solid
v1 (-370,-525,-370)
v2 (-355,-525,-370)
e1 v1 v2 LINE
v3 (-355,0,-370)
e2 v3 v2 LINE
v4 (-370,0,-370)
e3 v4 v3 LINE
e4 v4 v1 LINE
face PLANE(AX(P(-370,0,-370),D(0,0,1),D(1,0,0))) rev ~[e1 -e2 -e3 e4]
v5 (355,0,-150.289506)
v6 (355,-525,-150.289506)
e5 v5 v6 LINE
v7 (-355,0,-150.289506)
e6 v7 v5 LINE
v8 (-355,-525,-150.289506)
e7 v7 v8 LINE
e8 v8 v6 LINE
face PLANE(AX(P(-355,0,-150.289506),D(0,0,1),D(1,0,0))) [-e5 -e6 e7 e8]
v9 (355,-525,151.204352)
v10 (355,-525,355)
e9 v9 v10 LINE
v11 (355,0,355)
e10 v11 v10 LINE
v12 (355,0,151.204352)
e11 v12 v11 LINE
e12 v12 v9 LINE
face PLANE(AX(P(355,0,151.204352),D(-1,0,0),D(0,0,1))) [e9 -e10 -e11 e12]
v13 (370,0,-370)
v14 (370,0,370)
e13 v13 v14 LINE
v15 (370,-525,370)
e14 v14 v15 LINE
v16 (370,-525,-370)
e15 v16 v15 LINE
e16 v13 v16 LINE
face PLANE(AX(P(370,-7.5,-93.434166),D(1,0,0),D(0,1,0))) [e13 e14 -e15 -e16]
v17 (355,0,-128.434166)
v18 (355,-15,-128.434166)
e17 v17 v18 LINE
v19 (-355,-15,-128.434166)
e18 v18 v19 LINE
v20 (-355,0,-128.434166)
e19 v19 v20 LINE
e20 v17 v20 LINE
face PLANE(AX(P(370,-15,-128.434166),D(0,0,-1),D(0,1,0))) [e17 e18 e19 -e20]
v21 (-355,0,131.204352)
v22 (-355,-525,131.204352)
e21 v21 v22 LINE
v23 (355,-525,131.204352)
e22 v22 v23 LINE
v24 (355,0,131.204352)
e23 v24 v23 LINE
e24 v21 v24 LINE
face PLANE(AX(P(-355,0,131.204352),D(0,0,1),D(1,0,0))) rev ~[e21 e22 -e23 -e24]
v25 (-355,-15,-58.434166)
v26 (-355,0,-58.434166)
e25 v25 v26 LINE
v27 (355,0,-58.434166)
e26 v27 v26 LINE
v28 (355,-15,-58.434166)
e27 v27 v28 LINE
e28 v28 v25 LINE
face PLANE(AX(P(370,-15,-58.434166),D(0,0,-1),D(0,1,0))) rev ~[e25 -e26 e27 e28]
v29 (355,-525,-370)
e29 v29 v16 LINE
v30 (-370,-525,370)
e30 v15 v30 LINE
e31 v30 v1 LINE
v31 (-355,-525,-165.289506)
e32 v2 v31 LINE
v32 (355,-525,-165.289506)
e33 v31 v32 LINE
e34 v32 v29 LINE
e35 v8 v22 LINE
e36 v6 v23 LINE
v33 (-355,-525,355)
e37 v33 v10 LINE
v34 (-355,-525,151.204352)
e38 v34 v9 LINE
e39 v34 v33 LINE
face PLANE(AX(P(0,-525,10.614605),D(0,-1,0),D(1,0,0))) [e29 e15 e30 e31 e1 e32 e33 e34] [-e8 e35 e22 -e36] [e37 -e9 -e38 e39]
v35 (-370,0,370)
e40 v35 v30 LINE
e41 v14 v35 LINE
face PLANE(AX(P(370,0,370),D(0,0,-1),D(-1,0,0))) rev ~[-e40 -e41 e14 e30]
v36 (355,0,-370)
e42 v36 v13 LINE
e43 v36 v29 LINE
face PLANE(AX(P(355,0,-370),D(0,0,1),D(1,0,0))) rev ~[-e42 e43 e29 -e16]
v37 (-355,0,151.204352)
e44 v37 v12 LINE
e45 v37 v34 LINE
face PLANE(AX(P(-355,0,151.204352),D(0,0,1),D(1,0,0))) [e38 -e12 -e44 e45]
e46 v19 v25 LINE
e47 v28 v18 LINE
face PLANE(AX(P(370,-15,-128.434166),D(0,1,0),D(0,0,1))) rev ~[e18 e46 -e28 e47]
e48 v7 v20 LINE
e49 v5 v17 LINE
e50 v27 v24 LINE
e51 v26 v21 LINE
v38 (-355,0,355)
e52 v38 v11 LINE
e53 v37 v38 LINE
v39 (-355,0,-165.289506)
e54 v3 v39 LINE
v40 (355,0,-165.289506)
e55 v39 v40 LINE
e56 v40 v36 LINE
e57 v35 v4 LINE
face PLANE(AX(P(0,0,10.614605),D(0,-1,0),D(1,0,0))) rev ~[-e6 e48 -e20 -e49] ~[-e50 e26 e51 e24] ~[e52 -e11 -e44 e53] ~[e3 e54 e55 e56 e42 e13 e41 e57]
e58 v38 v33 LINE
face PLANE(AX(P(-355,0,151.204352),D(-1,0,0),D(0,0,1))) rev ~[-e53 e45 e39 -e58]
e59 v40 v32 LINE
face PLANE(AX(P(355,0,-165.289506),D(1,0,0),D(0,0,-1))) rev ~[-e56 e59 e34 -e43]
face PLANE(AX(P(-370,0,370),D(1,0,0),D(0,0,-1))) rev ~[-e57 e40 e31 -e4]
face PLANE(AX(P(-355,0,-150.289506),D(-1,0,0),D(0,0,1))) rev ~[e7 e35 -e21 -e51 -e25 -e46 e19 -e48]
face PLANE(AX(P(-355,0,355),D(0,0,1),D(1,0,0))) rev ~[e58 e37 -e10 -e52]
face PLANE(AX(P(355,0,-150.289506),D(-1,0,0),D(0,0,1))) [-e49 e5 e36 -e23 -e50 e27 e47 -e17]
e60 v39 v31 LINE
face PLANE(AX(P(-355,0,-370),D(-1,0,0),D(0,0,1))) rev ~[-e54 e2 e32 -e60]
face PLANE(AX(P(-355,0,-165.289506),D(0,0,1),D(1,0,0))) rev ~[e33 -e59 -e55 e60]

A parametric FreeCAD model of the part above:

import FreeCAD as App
import Part
import Sketcher
Q = App.Units.Quantity

doc = App.newDocument("Part")
body = doc.addObject("PartDesign::Body", "Body")

# Sketch on XZ plane
sketch1 = body.newObject("Sketcher::SketchObject", "Sketch")
sketch1.AttachmentSupport = (doc.getObject("XZ_Plane"), [""])
sketch1.MapMode = "FlatFace"
sketch1.addGeometry(Part.LineSegment(App.Vector(370, -370, 0), App.Vector(370, 370, 0)), False)
sketch1.addGeometry(Part.LineSegment(App.Vector(370, 370, 0), App.Vector(-370, 370, 0)), False)
sketch1.addGeometry(Part.LineSegment(App.Vector(-370, 370, 0), App.Vector(-370, -370, 0)), False)
sketch1.addGeometry(Part.LineSegment(App.Vector(-370, -370, 0), App.Vector(-355, -370, 0)), False)
sketch1.addGeometry(Part.LineSegment(App.Vector(-355, -370, 0), App.Vector(-355, -165, 0)), False)
sketch1.addGeometry(Part.LineSegment(App.Vector(-355, -165, 0), App.Vector(355, -165, 0)), False)
sketch1.addGeometry(Part.LineSegment(App.Vector(355, -165, 0), App.Vector(355, -370, 0)), False)
sketch1.addGeometry(Part.LineSegment(App.Vector(355, -370, 0), App.Vector(370, -370, 0)), False)
sketch1.addGeometry(Part.LineSegment(App.Vector(355, -150, 0), App.Vector(-355, -150, 0)), False)
sketch1.addGeometry(Part.LineSegment(App.Vector(-355, -150, 0), App.Vector(-355, 131, 0)), False)
sketch1.addGeometry(Part.LineSegment(App.Vector(-355, 131, 0), App.Vector(355, 131, 0)), False)
sketch1.addGeometry(Part.LineSegment(App.Vector(355, 131, 0), App.Vector(355, -150, 0)), False)
sketch1.addGeometry(Part.LineSegment(App.Vector(355, 151, 0), App.Vector(-355, 151, 0)), False)
sketch1.addGeometry(Part.LineSegment(App.Vector(-355, 151, 0), App.Vector(-355, 355, 0)), False)
sketch1.addGeometry(Part.LineSegment(App.Vector(-355, 355, 0), App.Vector(355, 355, 0)), False)
sketch1.addGeometry(Part.LineSegment(App.Vector(355, 355, 0), App.Vector(355, 151, 0)), False)
sketch1.addConstraint(Sketcher.Constraint("Coincident", 0, 2, 1, 1))
sketch1.addConstraint(Sketcher.Constraint("Coincident", 1, 2, 2, 1))
sketch1.addConstraint(Sketcher.Constraint("Coincident", 2, 2, 3, 1))
sketch1.addConstraint(Sketcher.Constraint("Coincident", 3, 2, 4, 1))
sketch1.addConstraint(Sketcher.Constraint("Coincident", 4, 2, 5, 1))
sketch1.addConstraint(Sketcher.Constraint("Coincident", 5, 2, 6, 1))
sketch1.addConstraint(Sketcher.Constraint("Coincident", 6, 2, 7, 1))
sketch1.addConstraint(Sketcher.Constraint("Coincident", 7, 2, 0, 1))
sketch1.addConstraint(Sketcher.Constraint("Coincident", 8, 2, 9, 1))
sketch1.addConstraint(Sketcher.Constraint("Coincident", 9, 2, 10, 1))
sketch1.addConstraint(Sketcher.Constraint("Coincident", 10, 2, 11, 1))
sketch1.addConstraint(Sketcher.Constraint("Coincident", 11, 2, 8, 1))
sketch1.addConstraint(Sketcher.Constraint("Coincident", 12, 2, 13, 1))
sketch1.addConstraint(Sketcher.Constraint("Coincident", 13, 2, 14, 1))
sketch1.addConstraint(Sketcher.Constraint("Coincident", 14, 2, 15, 1))
sketch1.addConstraint(Sketcher.Constraint("Coincident", 15, 2, 12, 1))
sketch1.addConstraint(Sketcher.Constraint("Vertical", 0))
sketch1.addConstraint(Sketcher.Constraint("Horizontal", 1))
sketch1.addConstraint(Sketcher.Constraint("Vertical", 2))
sketch1.addConstraint(Sketcher.Constraint("Horizontal", 3))
sketch1.addConstraint(Sketcher.Constraint("Vertical", 4))
sketch1.addConstraint(Sketcher.Constraint("Horizontal", 5))
sketch1.addConstraint(Sketcher.Constraint("Vertical", 6))
sketch1.addConstraint(Sketcher.Constraint("Horizontal", 7))
sketch1.addConstraint(Sketcher.Constraint("Horizontal", 8))
sketch1.addConstraint(Sketcher.Constraint("Vertical", 9))
sketch1.addConstraint(Sketcher.Constraint("Horizontal", 10))
sketch1.addConstraint(Sketcher.Constraint("Vertical", 11))
sketch1.addConstraint(Sketcher.Constraint("Horizontal", 12))
sketch1.addConstraint(Sketcher.Constraint("Vertical", 13))
sketch1.addConstraint(Sketcher.Constraint("Horizontal", 14))
sketch1.addConstraint(Sketcher.Constraint("Vertical", 15))
sketch1.addConstraint(Sketcher.Constraint("Symmetric", 0, 2, 2, 2, -1, 1))
sketch1.addConstraint(Sketcher.Constraint("Symmetric", 3, 2, 6, 2, -2))
sketch1.addConstraint(Sketcher.Constraint("Vertical", 4, 2, 8, 2))
sketch1.addConstraint(Sketcher.Constraint("Vertical", 6, 2, 10, 2))
sketch1.addConstraint(Sketcher.Constraint("Vertical", 9, 2, 12, 2))
sketch1.addConstraint(Sketcher.Constraint("Vertical", 11, 2, 14, 2))
sketch1.addConstraint(Sketcher.Constraint("Equal", 1, 0))
sketch1.addConstraint(Sketcher.Constraint("DistanceX", 1, 2, 1, 1, Q("740 mm")))
sketch1.addConstraint(Sketcher.Constraint("DistanceX", 3, 1, 3, 2, Q("15 mm")))
sketch1.addConstraint(Sketcher.Constraint("DistanceY", -1, 1, 13, 2, Q("355 mm")))
sketch1.addConstraint(Sketcher.Constraint("DistanceY", 4, 2, 8, 2, Q("15 mm")))
sketch1.addConstraint(Sketcher.Constraint("DistanceY", 9, 2, 12, 2, Q("20 mm")))
sketch1.addConstraint(Sketcher.Constraint("DistanceY", 9, 1, 9, 2, Q("281.493858 mm")))
sketch1.addConstraint(Sketcher.Constraint("DistanceY", 13, 1, 13, 2, Q("203.795648 mm")))
pad1 = body.newObject("PartDesign::Pad", "Pad")
pad1.Profile = sketch1
pad1.Length = 525

# Sketch on YZ plane
sketch2 = body.newObject("Sketcher::SketchObject", "Sketch001")
sketch2.AttachmentSupport = (doc.getObject("YZ_Plane"), [""])
sketch2.MapMode = "FlatFace"
sketch2.AttachmentOffset = App.Placement(App.Vector(0, 0, 370), App.Rotation())
sketch2.addGeometry(Part.LineSegment(App.Vector(-15, -58, 0), App.Vector(-15, -128, 0)), False)
sketch2.addGeometry(Part.LineSegment(App.Vector(-15, -128, 0), App.Vector(0, -128, 0)), False)
sketch2.addGeometry(Part.LineSegment(App.Vector(0, -128, 0), App.Vector(0, -58, 0)), False)
sketch2.addGeometry(Part.LineSegment(App.Vector(0, -58, 0), App.Vector(-15, -58, 0)), False)
sketch2.addConstraint(Sketcher.Constraint("Coincident", 0, 2, 1, 1))
sketch2.addConstraint(Sketcher.Constraint("Coincident", 1, 2, 2, 1))
sketch2.addConstraint(Sketcher.Constraint("Coincident", 2, 2, 3, 1))
sketch2.addConstraint(Sketcher.Constraint("Coincident", 3, 2, 0, 1))
sketch2.addConstraint(Sketcher.Constraint("Vertical", 0))
sketch2.addConstraint(Sketcher.Constraint("Horizontal", 1))
sketch2.addConstraint(Sketcher.Constraint("Vertical", 2))
sketch2.addConstraint(Sketcher.Constraint("Horizontal", 3))
sketch2.addConstraint(Sketcher.Constraint("PointOnObject", 1, 2, -2))
sketch2.addConstraint(Sketcher.Constraint("DistanceX", 1, 1, 1, 2, Q("15 mm")))
sketch2.addConstraint(Sketcher.Constraint("DistanceY", 0, 2, 0, 1, Q("70 mm")))
sketch2.addConstraint(Sketcher.Constraint("DistanceY", 0, 2, -1, 1, Q("128.434166 mm")))
pad2 = body.newObject("PartDesign::Pad", "Pad001")
pad2.Profile = sketch2
pad2.Type = "UpToLast"
pad2.Reversed = True

doc.recompute()
